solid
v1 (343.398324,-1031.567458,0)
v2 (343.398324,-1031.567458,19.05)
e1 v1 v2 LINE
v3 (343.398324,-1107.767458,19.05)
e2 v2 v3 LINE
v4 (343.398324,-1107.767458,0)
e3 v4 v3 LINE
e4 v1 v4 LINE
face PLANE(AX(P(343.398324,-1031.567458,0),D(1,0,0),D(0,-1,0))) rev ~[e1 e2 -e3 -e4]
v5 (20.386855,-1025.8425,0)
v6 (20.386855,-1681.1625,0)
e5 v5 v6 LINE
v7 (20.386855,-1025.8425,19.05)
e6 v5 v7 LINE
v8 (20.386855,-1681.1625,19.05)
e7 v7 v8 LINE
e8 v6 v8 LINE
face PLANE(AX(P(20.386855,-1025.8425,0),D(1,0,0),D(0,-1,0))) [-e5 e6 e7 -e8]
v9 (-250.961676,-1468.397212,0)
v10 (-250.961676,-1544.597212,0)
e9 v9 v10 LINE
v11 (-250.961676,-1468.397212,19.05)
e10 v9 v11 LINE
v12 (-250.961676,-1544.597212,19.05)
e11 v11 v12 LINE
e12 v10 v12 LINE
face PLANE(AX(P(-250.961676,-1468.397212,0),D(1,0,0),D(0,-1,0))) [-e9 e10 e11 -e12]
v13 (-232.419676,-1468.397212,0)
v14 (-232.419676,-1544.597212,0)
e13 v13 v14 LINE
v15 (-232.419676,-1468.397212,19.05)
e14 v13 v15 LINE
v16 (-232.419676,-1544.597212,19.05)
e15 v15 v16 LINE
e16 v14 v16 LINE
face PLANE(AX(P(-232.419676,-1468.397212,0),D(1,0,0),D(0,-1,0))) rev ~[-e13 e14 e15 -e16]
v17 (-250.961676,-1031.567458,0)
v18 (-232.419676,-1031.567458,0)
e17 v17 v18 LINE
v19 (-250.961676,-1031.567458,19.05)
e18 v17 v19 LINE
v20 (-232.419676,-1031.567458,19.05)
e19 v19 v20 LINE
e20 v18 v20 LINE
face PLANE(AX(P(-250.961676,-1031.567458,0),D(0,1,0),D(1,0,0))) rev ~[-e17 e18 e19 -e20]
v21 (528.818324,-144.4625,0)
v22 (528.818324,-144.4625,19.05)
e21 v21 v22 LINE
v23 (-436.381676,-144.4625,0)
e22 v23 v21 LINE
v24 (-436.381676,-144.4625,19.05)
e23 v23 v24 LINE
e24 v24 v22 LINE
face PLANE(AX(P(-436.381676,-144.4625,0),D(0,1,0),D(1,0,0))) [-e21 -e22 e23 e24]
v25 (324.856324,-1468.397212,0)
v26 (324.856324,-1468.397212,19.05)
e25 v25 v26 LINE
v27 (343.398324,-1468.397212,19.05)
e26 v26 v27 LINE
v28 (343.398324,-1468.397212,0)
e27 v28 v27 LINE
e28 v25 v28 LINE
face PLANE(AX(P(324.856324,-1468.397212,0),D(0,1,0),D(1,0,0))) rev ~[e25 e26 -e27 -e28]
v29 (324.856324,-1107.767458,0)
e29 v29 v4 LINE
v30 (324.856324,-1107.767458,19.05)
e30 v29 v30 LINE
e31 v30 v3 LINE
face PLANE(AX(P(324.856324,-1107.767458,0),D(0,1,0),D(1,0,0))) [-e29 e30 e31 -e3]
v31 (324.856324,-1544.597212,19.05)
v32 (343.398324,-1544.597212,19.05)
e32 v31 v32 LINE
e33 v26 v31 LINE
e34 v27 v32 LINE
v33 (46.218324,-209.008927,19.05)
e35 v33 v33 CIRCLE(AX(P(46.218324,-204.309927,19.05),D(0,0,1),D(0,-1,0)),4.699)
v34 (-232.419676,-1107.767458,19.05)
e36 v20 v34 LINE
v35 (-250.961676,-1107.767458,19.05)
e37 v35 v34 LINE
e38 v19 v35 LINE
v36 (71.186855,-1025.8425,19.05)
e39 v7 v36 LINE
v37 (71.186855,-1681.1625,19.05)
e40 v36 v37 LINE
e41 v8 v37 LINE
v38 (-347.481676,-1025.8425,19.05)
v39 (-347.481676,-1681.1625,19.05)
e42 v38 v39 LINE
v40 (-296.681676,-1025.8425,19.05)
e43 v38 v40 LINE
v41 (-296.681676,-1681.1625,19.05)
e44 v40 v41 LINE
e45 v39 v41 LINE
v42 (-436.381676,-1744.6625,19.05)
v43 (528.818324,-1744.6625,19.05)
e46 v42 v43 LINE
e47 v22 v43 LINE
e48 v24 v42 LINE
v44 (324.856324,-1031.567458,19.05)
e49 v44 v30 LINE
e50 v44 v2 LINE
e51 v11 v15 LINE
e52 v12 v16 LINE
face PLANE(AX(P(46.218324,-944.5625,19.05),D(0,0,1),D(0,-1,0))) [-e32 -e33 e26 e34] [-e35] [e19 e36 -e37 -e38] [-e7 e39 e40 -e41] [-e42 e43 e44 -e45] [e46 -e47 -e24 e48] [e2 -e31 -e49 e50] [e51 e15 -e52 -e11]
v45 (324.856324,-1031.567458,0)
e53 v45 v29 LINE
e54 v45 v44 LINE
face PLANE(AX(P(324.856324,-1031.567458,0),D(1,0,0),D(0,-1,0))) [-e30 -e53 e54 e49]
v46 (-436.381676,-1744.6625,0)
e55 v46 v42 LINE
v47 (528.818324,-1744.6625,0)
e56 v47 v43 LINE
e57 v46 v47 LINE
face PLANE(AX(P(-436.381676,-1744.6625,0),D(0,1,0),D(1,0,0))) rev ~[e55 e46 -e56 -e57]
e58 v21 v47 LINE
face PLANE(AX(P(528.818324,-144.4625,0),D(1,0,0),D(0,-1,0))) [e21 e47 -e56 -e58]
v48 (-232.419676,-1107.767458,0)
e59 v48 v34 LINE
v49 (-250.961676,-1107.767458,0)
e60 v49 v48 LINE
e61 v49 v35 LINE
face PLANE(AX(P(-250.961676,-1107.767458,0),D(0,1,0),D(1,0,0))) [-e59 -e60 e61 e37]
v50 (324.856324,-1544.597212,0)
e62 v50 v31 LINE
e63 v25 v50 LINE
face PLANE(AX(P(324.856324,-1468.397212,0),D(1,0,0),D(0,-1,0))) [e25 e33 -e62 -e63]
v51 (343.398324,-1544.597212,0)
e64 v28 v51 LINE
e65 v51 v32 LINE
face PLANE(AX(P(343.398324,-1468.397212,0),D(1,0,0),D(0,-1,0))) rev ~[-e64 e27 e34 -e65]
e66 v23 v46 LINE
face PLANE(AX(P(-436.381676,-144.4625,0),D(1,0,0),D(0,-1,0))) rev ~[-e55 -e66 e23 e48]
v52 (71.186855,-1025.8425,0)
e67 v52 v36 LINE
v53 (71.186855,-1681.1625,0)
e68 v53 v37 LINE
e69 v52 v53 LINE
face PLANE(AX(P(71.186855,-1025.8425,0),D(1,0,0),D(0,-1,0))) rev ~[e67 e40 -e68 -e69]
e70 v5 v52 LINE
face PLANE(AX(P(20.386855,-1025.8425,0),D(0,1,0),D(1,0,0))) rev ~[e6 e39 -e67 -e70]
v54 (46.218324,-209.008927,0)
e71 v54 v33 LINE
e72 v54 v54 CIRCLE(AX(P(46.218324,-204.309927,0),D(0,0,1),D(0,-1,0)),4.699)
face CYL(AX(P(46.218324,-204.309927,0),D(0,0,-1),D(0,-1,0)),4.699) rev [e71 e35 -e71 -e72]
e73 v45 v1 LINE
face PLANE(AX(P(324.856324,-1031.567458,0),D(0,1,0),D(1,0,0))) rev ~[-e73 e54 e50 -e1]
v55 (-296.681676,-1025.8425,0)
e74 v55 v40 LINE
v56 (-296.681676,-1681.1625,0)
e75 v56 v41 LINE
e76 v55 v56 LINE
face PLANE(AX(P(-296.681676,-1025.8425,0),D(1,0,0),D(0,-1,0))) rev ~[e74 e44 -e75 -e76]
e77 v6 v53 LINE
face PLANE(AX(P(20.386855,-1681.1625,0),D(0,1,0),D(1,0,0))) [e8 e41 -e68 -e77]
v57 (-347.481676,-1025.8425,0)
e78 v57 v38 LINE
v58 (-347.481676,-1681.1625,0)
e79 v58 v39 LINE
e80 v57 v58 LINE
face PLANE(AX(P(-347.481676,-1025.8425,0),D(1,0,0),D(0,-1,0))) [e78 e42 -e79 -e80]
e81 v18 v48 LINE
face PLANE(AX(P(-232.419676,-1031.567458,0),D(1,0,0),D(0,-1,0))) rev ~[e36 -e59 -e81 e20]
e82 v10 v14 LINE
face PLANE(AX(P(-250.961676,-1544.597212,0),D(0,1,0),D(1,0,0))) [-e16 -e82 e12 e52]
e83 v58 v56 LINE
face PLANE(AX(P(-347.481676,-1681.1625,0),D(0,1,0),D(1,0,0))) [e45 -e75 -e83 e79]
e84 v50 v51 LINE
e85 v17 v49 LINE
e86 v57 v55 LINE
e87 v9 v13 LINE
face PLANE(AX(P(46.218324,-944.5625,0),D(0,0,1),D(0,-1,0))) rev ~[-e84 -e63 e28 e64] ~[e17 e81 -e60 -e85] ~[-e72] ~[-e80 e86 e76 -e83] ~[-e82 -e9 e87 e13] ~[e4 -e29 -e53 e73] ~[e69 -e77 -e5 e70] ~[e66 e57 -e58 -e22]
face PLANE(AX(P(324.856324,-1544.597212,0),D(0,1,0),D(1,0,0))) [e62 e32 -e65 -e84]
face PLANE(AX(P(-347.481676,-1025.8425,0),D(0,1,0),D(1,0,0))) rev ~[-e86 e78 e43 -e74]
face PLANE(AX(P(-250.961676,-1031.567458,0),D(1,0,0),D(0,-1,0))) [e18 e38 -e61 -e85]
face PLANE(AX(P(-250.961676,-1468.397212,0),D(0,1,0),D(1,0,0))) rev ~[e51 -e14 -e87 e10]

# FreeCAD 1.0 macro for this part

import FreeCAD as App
import Part
import Sketcher
from FreeCAD import Vector
Q = App.Units.Quantity

doc = App.newDocument("Part")
body = doc.addObject("PartDesign::Body", "Body")

# Sketch on XY plane
sketch1 = body.newObject("Sketcher::SketchObject", "Sketch")
sketch1.AttachmentSupport = (doc.getObject("XY_Plane"), [""])
sketch1.MapMode = "FlatFace"
sketch1.addGeometry([
    Part.LineSegment(Vector(-436.4, 820.7, 0), Vector(-436.4, -144.5, 0)),  # 0
    Part.LineSegment(Vector(-436.4, -144.5, 0), Vector(1163.8, -144.5, 0)),  # 1
    Part.LineSegment(Vector(1163.8, -144.5, 0), Vector(1163.8, 820.7, 0)),  # 2
    Part.LineSegment(Vector(1163.8, 820.7, 0), Vector(-436.4, 820.7, 0)),  # 3
    Part.LineSegment(Vector(526.9, 41, 0), Vector(450.7, 41, 0)),  # 4
    Part.LineSegment(Vector(450.7, 41, 0), Vector(450.7, 59.5, 0)),  # 5
    Part.LineSegment(Vector(450.7, 59.5, 0), Vector(526.9, 59.5, 0)),  # 6
    Part.LineSegment(Vector(526.9, 59.5, 0), Vector(526.9, 41, 0)),  # 7
    Part.LineSegment(Vector(1100.3, -55.6, 0), Vector(445, -55.6, 0)),  # 8
    Part.LineSegment(Vector(445, -55.6, 0), Vector(445, -4.8, 0)),  # 9
    Part.LineSegment(Vector(445, -4.8, 0), Vector(1100.3, -4.8, 0)),  # 10
    Part.LineSegment(Vector(1100.3, -4.8, 0), Vector(1100.3, -55.6, 0)),  # 11
    Part.LineSegment(Vector(963.8, 41, 0), Vector(887.6, 41, 0)),  # 12
    Part.LineSegment(Vector(887.6, 41, 0), Vector(887.6, 59.5, 0)),  # 13
    Part.LineSegment(Vector(887.6, 59.5, 0), Vector(963.8, 59.5, 0)),  # 14
    Part.LineSegment(Vector(963.8, 59.5, 0), Vector(963.8, 41, 0)),  # 15
    Part.Circle(Vector(-376.5, 338.1, 0), Vector(0, 0, 1), 4.7),  # 16
    Part.LineSegment(Vector(1100.3, 312.3, 0), Vector(445, 312.3, 0)),  # 17
    Part.LineSegment(Vector(445, 312.3, 0), Vector(445, 363.1, 0)),  # 18
    Part.LineSegment(Vector(445, 363.1, 0), Vector(1100.3, 363.1, 0)),  # 19
    Part.LineSegment(Vector(1100.3, 363.1, 0), Vector(1100.3, 312.3, 0)),  # 20
    Part.LineSegment(Vector(526.9, 616.8, 0), Vector(450.7, 616.8, 0)),  # 21
    Part.LineSegment(Vector(450.7, 616.8, 0), Vector(450.7, 635.3, 0)),  # 22
    Part.LineSegment(Vector(450.7, 635.3, 0), Vector(526.9, 635.3, 0)),  # 23
    Part.LineSegment(Vector(526.9, 635.3, 0), Vector(526.9, 616.8, 0)),  # 24
    Part.LineSegment(Vector(963.8, 616.8, 0), Vector(887.6, 616.8, 0)),  # 25
    Part.LineSegment(Vector(887.6, 616.8, 0), Vector(887.6, 635.3, 0)),  # 26
    Part.LineSegment(Vector(887.6, 635.3, 0), Vector(963.8, 635.3, 0)),  # 27
    Part.LineSegment(Vector(963.8, 635.3, 0), Vector(963.8, 616.8, 0)),  # 28
], False)
sketch1.addConstraint([
    Sketcher.Constraint("Coincident", 0, 2, 1, 1),
    Sketcher.Constraint("Coincident", 1, 2, 2, 1),
    Sketcher.Constraint("Coincident", 2, 2, 3, 1),
    Sketcher.Constraint("Coincident", 3, 2, 0, 1),
    Sketcher.Constraint("Coincident", 4, 2, 5, 1),
    Sketcher.Constraint("Coincident", 5, 2, 6, 1),
    Sketcher.Constraint("Coincident", 6, 2, 7, 1),
    Sketcher.Constraint("Coincident", 7, 2, 4, 1),
    Sketcher.Constraint("Coincident", 8, 2, 9, 1),
    Sketcher.Constraint("Coincident", 9, 2, 10, 1),
    Sketcher.Constraint("Coincident", 10, 2, 11, 1),
    Sketcher.Constraint("Coincident", 11, 2, 8, 1),
    Sketcher.Constraint("Coincident", 12, 2, 13, 1),
    Sketcher.Constraint("Coincident", 13, 2, 14, 1),
    Sketcher.Constraint("Coincident", 14, 2, 15, 1),
    Sketcher.Constraint("Coincident", 15, 2, 12, 1),
    Sketcher.Constraint("Coincident", 17, 2, 18, 1),
    Sketcher.Constraint("Coincident", 18, 2, 19, 1),
    Sketcher.Constraint("Coincident", 19, 2, 20, 1),
    Sketcher.Constraint("Coincident", 20, 2, 17, 1),
    Sketcher.Constraint("Coincident", 21, 2, 22, 1),
    Sketcher.Constraint("Coincident", 22, 2, 23, 1),
    Sketcher.Constraint("Coincident", 23, 2, 24, 1),
    Sketcher.Constraint("Coincident", 24, 2, 21, 1),
    Sketcher.Constraint("Coincident", 25, 2, 26, 1),
    Sketcher.Constraint("Coincident", 26, 2, 27, 1),
    Sketcher.Constraint("Coincident", 27, 2, 28, 1),
    Sketcher.Constraint("Coincident", 28, 2, 25, 1),
    Sketcher.Constraint("Vertical", 0),
    Sketcher.Constraint("Horizontal", 1),
    Sketcher.Constraint("Vertical", 2),
    Sketcher.Constraint("Horizontal", 3),
    Sketcher.Constraint("Horizontal", 4),
    Sketcher.Constraint("Vertical", 5),
    Sketcher.Constraint("Horizontal", 6),
    Sketcher.Constraint("Vertical", 7),
    Sketcher.Constraint("Horizontal", 8),
    Sketcher.Constraint("Vertical", 9),
    Sketcher.Constraint("Horizontal", 10),
    Sketcher.Constraint("Vertical", 11),
    Sketcher.Constraint("Horizontal", 12),
    Sketcher.Constraint("Vertical", 13),
    Sketcher.Constraint("Horizontal", 14),
    Sketcher.Constraint("Vertical", 15),
    Sketcher.Constraint("Horizontal", 17),
    Sketcher.Constraint("Vertical", 18),
    Sketcher.Constraint("Horizontal", 19),
    Sketcher.Constraint("Vertical", 20),
    Sketcher.Constraint("Horizontal", 21),
    Sketcher.Constraint("Vertical", 22),
    Sketcher.Constraint("Horizontal", 23),
    Sketcher.Constraint("Vertical", 24),
    Sketcher.Constraint("Horizontal", 25),
    Sketcher.Constraint("Vertical", 26),
    Sketcher.Constraint("Horizontal", 27),
    Sketcher.Constraint("Vertical", 28),
    Sketcher.Constraint("Horizontal", 7, 2, 12, 2),
    Sketcher.Constraint("Horizontal", 6, 2, 13, 2),
    Sketcher.Constraint("Horizontal", 24, 2, 25, 2),
    Sketcher.Constraint("Horizontal", 23, 2, 26, 2),
    Sketcher.Constraint("Vertical", 9, 2, 17, 2),
    Sketcher.Constraint("Vertical", 11, 2, 19, 2),
    Sketcher.Constraint("Vertical", 5, 2, 21, 2),
    Sketcher.Constraint("Vertical", 7, 2, 23, 2),
    Sketcher.Constraint("Vertical", 13, 2, 25, 2),
    Sketcher.Constraint("Vertical", 15, 2, 27, 2),
    Sketcher.Constraint("Equal", 6, 12),
    Sketcher.Constraint("Equal", 11, 18),
    Sketcher.Constraint("Equal", 15, 22),
    Sketcher.Constraint("Diameter", 16, Q("0.37 in")),
    Sketcher.Constraint("DistanceX", 1, 1, 1, 2, Q("63 in")),
    Sketcher.Constraint("DistanceX", 4, 2, 4, 1, Q("3 in")),
    Sketcher.Constraint("DistanceY", 0, 2, 0, 1, Q("38 in")),
    Sketcher.Constraint("DistanceY", 9, 1, 9, 2, Q("2 in")),
    Sketcher.Constraint("DistanceX", 8, 2, 8, 1, Q("25.8 in")),
    Sketcher.Constraint("DistanceY", 0, 2, 16, 3, Q("19 in")),
    Sketcher.Constraint("DistanceY", 5, 1, 5, 2, Q("0.73 in")),
    Sketcher.Constraint("DistanceY", 1, 2, 4, 2, Q("7.3 in")),
    Sketcher.Constraint("DistanceY", 8, 2, 4, 2, Q("3.8 in")),
    Sketcher.Constraint("DistanceX", 8, 2, 1, 2, Q("28.3 in")),
    Sketcher.Constraint("DistanceY", 26, 2, 2, 2, Q("7.3 in")),
    Sketcher.Constraint("DistanceY", -1, 1, 16, 3, Q("13.3125 in")),
    Sketcher.Constraint("DistanceX", 16, 3, -1, 1, Q("376.534249 mm")),
    Sketcher.Constraint("DistanceX", -1, 1, 4, 2, Q("450.723282 mm")),
    Sketcher.Constraint("DistanceY", -1, 1, 17, 2, Q("312.306031 mm")),
    Sketcher.Constraint("DistanceX", 0, 2, -1, 1, Q("436.381676 mm")),
    Sketcher.Constraint("DistanceX", -1, 1, 12, 2, Q("887.553036 mm")),
])
pad1 = body.newObject("PartDesign::Pad", "Pad")
pad1.Profile = sketch1
pad1.Length = Q("0.75 in")
body2 = doc.addObject("PartDesign::Body", "Body001")
doc.recompute()

body.Placement = App.Placement(Vector(-291.919176, -580.844176, 0), App.Rotation(Vector(0, 0, -1), 90))
boolean = body2.newObject("PartDesign::Boolean", "Boolean")
boolean.Type = "Fuse"
boolean.addObjects([body])

doc.recompute()
